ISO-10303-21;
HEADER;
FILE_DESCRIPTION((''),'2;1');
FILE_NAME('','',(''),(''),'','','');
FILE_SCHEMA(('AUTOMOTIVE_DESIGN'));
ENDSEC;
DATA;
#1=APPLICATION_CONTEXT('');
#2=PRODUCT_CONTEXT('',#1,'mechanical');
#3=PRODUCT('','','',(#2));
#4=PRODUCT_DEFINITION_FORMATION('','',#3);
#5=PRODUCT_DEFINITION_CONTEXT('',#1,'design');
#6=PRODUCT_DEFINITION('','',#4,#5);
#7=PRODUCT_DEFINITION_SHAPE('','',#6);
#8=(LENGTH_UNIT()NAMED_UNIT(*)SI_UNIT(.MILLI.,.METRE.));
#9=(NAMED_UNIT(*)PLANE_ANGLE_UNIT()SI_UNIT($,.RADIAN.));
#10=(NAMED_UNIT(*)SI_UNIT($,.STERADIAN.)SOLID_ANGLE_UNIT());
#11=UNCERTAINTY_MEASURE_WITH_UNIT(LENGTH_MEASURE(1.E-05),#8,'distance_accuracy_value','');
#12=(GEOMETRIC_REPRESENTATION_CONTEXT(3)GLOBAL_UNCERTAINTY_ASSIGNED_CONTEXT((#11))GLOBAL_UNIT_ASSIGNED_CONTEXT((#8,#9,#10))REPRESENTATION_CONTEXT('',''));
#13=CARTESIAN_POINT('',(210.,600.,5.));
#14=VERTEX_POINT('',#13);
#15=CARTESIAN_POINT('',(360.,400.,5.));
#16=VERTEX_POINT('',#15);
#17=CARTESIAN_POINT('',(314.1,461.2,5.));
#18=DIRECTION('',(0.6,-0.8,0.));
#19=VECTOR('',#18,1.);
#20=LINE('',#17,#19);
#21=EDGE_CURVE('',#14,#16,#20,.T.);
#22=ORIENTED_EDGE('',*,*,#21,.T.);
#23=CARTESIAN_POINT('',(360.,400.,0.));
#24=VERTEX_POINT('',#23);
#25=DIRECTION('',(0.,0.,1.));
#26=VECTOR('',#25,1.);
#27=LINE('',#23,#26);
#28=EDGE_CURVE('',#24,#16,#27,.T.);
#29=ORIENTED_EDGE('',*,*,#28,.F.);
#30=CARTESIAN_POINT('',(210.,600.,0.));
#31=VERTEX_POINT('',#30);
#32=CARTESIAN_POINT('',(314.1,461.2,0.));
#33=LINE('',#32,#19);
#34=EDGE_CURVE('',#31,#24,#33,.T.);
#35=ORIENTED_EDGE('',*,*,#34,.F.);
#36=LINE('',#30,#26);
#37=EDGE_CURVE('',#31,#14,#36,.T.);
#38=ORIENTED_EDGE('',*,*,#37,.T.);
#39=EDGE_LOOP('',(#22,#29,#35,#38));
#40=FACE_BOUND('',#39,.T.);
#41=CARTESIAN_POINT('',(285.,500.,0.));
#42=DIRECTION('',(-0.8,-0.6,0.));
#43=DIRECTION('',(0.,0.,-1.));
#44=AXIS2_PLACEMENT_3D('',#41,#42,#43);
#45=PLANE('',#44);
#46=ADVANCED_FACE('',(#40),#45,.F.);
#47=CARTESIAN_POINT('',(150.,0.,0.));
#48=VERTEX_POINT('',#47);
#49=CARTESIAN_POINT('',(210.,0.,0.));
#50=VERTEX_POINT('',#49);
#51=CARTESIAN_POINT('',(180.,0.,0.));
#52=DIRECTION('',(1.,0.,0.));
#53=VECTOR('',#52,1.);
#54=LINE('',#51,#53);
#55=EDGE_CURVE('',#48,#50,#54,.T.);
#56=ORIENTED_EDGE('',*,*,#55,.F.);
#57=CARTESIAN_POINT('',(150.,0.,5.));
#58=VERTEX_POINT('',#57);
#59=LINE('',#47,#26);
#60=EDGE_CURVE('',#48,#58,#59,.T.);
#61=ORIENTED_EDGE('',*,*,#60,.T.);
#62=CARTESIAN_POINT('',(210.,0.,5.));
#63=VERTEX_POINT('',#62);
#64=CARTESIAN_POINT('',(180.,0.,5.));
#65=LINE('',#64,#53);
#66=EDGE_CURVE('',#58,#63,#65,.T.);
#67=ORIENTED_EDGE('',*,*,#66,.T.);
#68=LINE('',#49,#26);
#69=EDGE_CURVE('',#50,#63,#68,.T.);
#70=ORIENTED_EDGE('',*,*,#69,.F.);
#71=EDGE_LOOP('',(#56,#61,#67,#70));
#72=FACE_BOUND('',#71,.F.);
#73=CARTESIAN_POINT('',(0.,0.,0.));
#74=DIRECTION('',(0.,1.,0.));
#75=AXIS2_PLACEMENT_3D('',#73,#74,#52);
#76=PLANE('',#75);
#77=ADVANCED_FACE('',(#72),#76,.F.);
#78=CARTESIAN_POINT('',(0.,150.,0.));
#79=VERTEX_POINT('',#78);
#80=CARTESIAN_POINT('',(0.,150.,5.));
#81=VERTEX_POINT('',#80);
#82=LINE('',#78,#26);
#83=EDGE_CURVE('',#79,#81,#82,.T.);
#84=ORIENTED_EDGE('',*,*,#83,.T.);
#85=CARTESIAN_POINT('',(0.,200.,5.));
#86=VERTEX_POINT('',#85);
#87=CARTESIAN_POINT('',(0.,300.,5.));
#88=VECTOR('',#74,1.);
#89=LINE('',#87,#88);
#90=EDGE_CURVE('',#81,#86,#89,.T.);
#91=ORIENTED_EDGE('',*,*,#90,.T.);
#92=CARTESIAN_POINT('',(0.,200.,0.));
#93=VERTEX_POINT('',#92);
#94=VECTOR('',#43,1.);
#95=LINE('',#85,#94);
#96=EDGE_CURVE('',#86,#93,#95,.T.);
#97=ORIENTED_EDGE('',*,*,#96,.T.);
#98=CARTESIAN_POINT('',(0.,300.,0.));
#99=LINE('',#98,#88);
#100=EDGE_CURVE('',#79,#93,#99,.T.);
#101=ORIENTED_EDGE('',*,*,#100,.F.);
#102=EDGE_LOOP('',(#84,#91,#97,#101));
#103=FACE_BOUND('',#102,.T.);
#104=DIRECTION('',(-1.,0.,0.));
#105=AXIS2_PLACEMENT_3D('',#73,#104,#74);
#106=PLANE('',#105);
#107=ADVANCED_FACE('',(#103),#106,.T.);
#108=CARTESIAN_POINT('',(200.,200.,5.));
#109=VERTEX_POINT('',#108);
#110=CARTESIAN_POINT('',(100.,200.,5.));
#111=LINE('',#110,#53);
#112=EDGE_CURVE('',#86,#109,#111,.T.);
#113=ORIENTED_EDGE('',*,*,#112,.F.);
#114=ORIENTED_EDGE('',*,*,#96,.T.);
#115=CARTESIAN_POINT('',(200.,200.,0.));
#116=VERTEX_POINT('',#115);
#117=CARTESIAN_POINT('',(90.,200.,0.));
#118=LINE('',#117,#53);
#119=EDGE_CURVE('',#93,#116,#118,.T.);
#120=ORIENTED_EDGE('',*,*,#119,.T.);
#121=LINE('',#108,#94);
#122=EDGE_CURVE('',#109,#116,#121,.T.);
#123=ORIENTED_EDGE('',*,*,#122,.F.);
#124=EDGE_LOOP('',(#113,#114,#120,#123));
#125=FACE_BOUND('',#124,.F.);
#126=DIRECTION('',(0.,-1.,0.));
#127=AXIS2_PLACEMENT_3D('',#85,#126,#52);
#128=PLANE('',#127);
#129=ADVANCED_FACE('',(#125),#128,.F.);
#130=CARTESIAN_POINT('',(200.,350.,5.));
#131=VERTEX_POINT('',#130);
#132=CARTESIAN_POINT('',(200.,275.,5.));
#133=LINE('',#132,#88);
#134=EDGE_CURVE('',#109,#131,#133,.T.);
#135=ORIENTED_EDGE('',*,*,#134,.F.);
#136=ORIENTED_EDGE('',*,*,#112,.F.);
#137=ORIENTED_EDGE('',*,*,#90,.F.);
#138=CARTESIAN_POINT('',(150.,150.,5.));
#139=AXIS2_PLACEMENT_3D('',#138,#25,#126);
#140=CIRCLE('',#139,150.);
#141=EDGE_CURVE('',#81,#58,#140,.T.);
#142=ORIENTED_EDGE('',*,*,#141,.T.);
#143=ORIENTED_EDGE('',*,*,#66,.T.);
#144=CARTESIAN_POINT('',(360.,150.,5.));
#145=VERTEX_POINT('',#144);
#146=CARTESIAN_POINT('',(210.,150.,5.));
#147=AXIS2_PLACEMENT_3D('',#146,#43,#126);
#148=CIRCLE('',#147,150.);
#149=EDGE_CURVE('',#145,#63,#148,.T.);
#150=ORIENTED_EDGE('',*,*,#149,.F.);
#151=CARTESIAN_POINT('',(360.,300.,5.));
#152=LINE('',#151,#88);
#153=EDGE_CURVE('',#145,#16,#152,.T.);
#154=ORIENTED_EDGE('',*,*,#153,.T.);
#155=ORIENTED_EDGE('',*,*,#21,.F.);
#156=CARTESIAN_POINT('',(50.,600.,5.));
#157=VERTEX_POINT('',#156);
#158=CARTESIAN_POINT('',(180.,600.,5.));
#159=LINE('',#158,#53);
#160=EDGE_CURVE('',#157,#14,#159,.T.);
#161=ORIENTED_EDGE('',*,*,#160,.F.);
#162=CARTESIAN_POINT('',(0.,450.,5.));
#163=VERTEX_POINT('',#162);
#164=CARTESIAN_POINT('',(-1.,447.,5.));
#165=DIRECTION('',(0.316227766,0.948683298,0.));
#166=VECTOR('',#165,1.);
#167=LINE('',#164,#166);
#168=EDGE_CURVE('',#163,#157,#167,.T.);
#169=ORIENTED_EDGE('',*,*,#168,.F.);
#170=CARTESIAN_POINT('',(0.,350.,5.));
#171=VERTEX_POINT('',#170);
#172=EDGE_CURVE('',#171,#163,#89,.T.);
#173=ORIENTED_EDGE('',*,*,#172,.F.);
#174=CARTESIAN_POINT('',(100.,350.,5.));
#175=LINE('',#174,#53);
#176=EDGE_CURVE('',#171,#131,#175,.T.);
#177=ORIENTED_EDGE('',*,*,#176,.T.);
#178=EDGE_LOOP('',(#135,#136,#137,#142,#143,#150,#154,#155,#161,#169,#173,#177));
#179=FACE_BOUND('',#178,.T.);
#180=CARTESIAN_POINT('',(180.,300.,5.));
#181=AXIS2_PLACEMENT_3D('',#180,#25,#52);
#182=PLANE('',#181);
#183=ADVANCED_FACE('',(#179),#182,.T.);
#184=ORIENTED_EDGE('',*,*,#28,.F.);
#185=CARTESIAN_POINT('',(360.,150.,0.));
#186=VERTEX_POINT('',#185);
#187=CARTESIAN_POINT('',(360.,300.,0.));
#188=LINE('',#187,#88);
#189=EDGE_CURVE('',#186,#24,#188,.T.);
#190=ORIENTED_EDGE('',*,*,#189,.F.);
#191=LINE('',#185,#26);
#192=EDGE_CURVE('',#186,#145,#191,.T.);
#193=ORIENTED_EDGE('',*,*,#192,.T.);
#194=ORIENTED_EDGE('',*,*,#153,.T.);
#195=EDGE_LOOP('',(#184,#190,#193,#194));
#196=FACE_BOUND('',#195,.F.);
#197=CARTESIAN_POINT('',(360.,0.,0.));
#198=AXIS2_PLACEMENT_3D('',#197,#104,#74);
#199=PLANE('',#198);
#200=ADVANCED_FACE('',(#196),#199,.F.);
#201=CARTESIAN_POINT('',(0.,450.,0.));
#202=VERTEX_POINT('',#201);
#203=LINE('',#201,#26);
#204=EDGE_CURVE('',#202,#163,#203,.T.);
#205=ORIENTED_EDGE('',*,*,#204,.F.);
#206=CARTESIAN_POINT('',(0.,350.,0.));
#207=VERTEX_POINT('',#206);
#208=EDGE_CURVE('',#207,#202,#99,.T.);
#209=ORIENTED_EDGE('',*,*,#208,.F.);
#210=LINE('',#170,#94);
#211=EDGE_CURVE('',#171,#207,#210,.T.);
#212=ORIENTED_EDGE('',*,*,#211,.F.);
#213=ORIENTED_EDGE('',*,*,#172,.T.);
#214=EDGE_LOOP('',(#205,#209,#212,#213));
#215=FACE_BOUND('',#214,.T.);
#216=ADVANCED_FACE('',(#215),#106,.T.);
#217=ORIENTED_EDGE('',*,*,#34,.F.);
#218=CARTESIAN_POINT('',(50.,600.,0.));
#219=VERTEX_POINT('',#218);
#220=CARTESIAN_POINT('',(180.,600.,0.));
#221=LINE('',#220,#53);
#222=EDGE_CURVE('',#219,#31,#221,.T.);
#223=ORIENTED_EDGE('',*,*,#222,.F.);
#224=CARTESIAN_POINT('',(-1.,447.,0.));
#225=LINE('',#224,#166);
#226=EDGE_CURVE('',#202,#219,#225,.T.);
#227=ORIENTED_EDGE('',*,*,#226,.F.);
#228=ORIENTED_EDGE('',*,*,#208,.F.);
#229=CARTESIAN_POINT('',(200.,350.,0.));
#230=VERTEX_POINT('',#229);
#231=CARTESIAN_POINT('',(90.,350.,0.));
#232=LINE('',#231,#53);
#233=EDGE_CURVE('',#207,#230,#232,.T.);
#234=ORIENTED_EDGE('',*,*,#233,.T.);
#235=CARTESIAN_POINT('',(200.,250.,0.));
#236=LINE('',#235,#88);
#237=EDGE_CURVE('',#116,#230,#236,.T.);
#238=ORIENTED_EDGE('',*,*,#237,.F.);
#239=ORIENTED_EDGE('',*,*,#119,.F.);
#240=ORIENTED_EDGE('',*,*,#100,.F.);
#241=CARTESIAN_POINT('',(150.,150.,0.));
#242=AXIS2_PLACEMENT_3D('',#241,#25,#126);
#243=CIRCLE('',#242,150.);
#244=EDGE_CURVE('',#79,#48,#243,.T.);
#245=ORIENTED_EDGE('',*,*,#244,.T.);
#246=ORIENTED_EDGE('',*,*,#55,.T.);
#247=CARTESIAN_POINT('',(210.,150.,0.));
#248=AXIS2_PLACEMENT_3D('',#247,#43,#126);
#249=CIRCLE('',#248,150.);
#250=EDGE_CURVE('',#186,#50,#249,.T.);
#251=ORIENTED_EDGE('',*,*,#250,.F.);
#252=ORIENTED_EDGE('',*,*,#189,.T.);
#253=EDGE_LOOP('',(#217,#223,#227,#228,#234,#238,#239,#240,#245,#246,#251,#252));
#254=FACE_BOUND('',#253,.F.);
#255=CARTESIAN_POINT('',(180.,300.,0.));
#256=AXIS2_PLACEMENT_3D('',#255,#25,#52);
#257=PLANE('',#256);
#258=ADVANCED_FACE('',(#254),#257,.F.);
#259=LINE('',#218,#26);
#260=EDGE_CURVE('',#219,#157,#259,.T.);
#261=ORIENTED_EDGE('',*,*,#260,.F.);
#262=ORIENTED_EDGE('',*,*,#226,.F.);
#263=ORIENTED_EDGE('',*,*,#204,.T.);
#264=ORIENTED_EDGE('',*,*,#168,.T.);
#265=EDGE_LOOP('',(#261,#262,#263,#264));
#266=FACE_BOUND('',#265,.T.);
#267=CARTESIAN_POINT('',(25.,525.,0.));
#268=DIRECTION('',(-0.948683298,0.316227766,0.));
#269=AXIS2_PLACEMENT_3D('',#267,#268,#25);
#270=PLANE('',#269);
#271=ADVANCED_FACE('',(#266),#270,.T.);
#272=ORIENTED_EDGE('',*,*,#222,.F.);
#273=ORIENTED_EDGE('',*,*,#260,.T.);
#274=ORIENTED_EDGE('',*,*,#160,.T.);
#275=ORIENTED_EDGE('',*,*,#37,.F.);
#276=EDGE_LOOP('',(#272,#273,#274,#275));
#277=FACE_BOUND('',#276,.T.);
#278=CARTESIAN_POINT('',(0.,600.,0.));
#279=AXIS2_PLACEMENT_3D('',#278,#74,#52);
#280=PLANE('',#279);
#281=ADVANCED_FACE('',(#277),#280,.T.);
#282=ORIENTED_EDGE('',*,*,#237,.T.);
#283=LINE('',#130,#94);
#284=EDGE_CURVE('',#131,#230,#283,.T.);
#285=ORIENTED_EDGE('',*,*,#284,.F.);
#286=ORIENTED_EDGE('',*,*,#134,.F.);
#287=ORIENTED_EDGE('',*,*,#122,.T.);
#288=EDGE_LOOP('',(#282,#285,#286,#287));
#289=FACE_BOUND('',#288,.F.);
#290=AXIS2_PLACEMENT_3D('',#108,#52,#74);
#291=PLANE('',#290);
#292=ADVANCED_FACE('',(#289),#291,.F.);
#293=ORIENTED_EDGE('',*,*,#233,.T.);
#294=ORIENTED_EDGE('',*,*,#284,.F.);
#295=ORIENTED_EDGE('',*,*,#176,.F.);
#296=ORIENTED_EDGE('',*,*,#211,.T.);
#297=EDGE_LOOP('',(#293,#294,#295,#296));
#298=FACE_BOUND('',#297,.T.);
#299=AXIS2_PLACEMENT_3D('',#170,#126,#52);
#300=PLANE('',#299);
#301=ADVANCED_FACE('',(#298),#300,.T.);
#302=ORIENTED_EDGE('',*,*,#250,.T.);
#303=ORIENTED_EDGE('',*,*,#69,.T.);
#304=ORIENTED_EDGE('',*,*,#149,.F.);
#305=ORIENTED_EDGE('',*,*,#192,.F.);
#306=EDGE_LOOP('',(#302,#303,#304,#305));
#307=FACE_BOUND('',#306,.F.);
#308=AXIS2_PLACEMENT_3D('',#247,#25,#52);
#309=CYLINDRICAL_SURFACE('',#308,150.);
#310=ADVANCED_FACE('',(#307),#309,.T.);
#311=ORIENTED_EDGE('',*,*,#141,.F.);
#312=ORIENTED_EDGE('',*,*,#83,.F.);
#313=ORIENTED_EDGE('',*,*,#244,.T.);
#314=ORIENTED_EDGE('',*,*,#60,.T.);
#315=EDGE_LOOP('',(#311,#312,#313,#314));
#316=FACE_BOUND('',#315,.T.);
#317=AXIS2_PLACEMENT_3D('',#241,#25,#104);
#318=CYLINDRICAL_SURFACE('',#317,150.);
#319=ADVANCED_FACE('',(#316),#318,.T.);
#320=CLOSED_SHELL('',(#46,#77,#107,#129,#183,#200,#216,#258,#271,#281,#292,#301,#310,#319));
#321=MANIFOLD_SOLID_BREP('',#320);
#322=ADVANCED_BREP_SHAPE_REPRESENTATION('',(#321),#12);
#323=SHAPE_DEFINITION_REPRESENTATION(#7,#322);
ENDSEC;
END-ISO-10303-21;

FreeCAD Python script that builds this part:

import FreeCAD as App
import Part
import Sketcher
from FreeCAD import Vector


def edges_at(feature, points):
    """Names of the edges that pass closest to the given points."""
    edges = feature.Shape.Edges
    near = lambda p: min(range(len(edges)), key=lambda i: edges[i].distToShape(Part.Vertex(*p))[0])
    return sorted({f"Edge{near(p) + 1}" for p in points})


def add_polygon(sketch, points):
    """Adds a closed chain of lines whose ends are joined by coincident constraints."""
    first, n = sketch.GeometryCount, len(points)
    for a, b in zip(points, points[1:] + points[:1]):
        sketch.addGeometry(Part.LineSegment(App.Vector(*a, 0), App.Vector(*b, 0)), False)
    for i in range(n):
        sketch.addConstraint(Sketcher.Constraint("Coincident", first + i, 2, first + (i + 1) % n, 1))

doc = App.newDocument("Part")
body = doc.addObject("PartDesign::Body", "Body")

# Sketch on XY plane
sketch1 = body.newObject("Sketcher::SketchObject", "Sketch")
sketch1.AttachmentSupport = (doc.getObject("XY_Plane"), [""])
sketch1.MapMode = "FlatFace"
add_polygon(sketch1, [(0, 600), (0, 0), (360, 0), (360, 600)])  # lines 0-3
sketch1.addConstraint([
    Sketcher.Constraint("Vertical", 0),
    Sketcher.Constraint("Horizontal", 1),
    Sketcher.Constraint("Vertical", 2),
    Sketcher.Constraint("Horizontal", 3),
    Sketcher.Constraint("Coincident", 0, 2, -1, 1),
    Sketcher.Constraint("DistanceX", 1, 1, 1, 2, 360.0),
    Sketcher.Constraint("DistanceY", 0, 2, 0, 1, 600.0),
])
pad1 = body.newObject("PartDesign::Pad", "Pad")
pad1.Profile = sketch1
pad1.Length = 5

# Sketch on XY plane
sketch2 = body.newObject("Sketcher::SketchObject", "Sketch001")
sketch2.AttachmentSupport = (doc.getObject("XY_Plane"), [""])
sketch2.MapMode = "FlatFace"
sketch2.AttachmentOffset = App.Placement(Vector(0, 0, 5), App.Rotation())
add_polygon(sketch2, [(0, 350), (0, 200), (200, 200), (200, 350)])  # lines 0-3
sketch2.addConstraint([
    Sketcher.Constraint("Vertical", 0),
    Sketcher.Constraint("Horizontal", 1),
    Sketcher.Constraint("Vertical", 2),
    Sketcher.Constraint("Horizontal", 3),
    Sketcher.Constraint("PointOnObject", 0, 2, -2),
    Sketcher.Constraint("DistanceX", 1, 1, 1, 2, 200.0),
    Sketcher.Constraint("DistanceY", 0, 2, 0, 1, 150.0),
    Sketcher.Constraint("DistanceY", -1, 1, 0, 2, 200.0),
])
pocket1 = body.newObject("PartDesign::Pocket", "Pocket")
pocket1.Profile = sketch2
pocket1.Length = 25
doc.recompute()

fillet = body.newObject("PartDesign::Fillet", "Fillet")
fillet.Base = (pocket1, edges_at(pocket1, [(0, 0, 2.5)]))
fillet.Radius = 150
doc.recompute()

chamfer = body.newObject("PartDesign::Chamfer", "Chamfer")
chamfer.Base = (fillet, edges_at(fillet, [(0, 600, 2.5)]))
chamfer.ChamferType = "Two distances"
chamfer.Size = 150
chamfer.Size2 = 50
chamfer.FlipDirection = True
doc.recompute()

chamfer2 = body.newObject("PartDesign::Chamfer", "Chamfer001")
chamfer2.Base = (chamfer, edges_at(chamfer, [(360, 600, 2.5)]))
chamfer2.ChamferType = "Two distances"
chamfer2.Size = 150
chamfer2.Size2 = 200
doc.recompute()

fillet2 = body.newObject("PartDesign::Fillet", "Fillet001")
fillet2.Base = (chamfer2, edges_at(chamfer2, [(360, 0, 2.5)]))
fillet2.Radius = 150

doc.recompute()
